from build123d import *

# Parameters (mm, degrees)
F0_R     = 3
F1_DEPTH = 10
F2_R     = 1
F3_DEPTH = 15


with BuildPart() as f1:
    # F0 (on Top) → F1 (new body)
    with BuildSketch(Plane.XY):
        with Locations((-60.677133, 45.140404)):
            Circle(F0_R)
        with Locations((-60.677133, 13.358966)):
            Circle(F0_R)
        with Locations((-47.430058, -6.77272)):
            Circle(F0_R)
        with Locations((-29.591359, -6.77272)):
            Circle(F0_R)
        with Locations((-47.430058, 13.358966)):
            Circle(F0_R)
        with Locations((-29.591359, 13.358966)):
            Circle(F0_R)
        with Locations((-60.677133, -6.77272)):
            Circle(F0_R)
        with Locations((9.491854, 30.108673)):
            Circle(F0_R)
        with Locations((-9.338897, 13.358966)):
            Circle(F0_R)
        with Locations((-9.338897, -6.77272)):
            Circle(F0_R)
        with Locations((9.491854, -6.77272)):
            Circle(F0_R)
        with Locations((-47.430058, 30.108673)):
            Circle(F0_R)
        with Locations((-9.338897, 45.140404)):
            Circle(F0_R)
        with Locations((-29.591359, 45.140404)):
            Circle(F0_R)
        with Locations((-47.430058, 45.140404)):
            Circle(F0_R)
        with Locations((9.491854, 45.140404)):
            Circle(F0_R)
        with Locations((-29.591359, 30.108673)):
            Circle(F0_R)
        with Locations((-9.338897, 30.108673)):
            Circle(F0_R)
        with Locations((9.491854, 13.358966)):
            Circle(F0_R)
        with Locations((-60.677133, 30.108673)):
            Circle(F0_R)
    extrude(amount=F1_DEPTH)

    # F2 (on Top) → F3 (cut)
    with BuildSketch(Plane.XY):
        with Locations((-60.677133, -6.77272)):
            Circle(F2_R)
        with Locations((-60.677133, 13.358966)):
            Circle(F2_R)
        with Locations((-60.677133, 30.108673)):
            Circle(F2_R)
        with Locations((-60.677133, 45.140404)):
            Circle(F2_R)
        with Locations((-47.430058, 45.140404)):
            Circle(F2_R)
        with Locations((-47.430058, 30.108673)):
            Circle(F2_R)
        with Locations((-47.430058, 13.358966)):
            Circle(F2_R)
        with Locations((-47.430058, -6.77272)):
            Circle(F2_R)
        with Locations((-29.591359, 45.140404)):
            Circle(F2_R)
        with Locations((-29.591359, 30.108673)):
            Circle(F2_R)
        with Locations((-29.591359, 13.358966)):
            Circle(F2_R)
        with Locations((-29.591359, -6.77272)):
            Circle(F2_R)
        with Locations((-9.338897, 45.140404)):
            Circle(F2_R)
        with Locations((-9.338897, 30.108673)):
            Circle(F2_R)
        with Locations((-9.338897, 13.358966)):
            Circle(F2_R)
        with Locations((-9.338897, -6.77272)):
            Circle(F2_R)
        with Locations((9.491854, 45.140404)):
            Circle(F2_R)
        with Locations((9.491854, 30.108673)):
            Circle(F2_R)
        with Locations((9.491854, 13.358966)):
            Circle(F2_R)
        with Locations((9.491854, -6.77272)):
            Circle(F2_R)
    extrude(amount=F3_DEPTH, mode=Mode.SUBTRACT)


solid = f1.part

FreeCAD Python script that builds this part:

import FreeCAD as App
import Part
import Sketcher

doc = App.newDocument("Part")
body = doc.addObject("PartDesign::Body", "Body")
body.AllowCompound = True

# Sketch on XY plane
sketch1 = body.newObject("Sketcher::SketchObject", "Sketch")
sketch1.AttachmentSupport = (doc.getObject("XY_Plane"), [""])
sketch1.MapMode = "FlatFace"
sketch1.addGeometry([
    Part.Circle(App.Vector(-60.7, 45.1, 0), App.Vector(0, 0, 1), 3),  # 0
    Part.Circle(App.Vector(-60.7, 13.4, 0), App.Vector(0, 0, 1), 3),  # 1
    Part.Circle(App.Vector(-47.4, -6.8, 0), App.Vector(0, 0, 1), 3),  # 2
    Part.Circle(App.Vector(-29.6, -6.8, 0), App.Vector(0, 0, 1), 3),  # 3
    Part.Circle(App.Vector(-47.4, 13.4, 0), App.Vector(0, 0, 1), 3),  # 4
    Part.Circle(App.Vector(-29.6, 13.4, 0), App.Vector(0, 0, 1), 3),  # 5
    Part.Circle(App.Vector(-60.7, -6.8, 0), App.Vector(0, 0, 1), 3),  # 6
    Part.Circle(App.Vector(9.5, 30.1, 0), App.Vector(0, 0, 1), 3),  # 7
    Part.Circle(App.Vector(-9.3, 13.4, 0), App.Vector(0, 0, 1), 3),  # 8
    Part.Circle(App.Vector(-9.3, -6.8, 0), App.Vector(0, 0, 1), 3),  # 9
    Part.Circle(App.Vector(9.5, -6.8, 0), App.Vector(0, 0, 1), 3),  # 10
    Part.Circle(App.Vector(-47.4, 30.1, 0), App.Vector(0, 0, 1), 3),  # 11
    Part.Circle(App.Vector(-9.3, 45.1, 0), App.Vector(0, 0, 1), 3),  # 12
    Part.Circle(App.Vector(-29.6, 45.1, 0), App.Vector(0, 0, 1), 3),  # 13
    Part.Circle(App.Vector(-47.4, 45.1, 0), App.Vector(0, 0, 1), 3),  # 14
    Part.Circle(App.Vector(9.5, 45.1, 0), App.Vector(0, 0, 1), 3),  # 15
    Part.Circle(App.Vector(-29.6, 30.1, 0), App.Vector(0, 0, 1), 3),  # 16
    Part.Circle(App.Vector(-9.3, 30.1, 0), App.Vector(0, 0, 1), 3),  # 17
    Part.Circle(App.Vector(9.5, 13.4, 0), App.Vector(0, 0, 1), 3),  # 18
    Part.Circle(App.Vector(-60.7, 30.1, 0), App.Vector(0, 0, 1), 3),  # 19
], False)
sketch1.addConstraint([
    Sketcher.Constraint("Equal", 0, 1),
    Sketcher.Constraint("Equal", 1, 2),
    Sketcher.Constraint("Equal", 2, 3),
    Sketcher.Constraint("Equal", 3, 4),
    Sketcher.Constraint("Equal", 4, 5),
    Sketcher.Constraint("Equal", 5, 6),
    Sketcher.Constraint("Equal", 6, 7),
    Sketcher.Constraint("Equal", 7, 8),
    Sketcher.Constraint("Equal", 8, 9),
    Sketcher.Constraint("Equal", 9, 10),
    Sketcher.Constraint("Equal", 10, 11),
    Sketcher.Constraint("Equal", 11, 12),
    Sketcher.Constraint("Equal", 12, 13),
    Sketcher.Constraint("Equal", 13, 14),
    Sketcher.Constraint("Equal", 14, 15),
    Sketcher.Constraint("Equal", 15, 16),
    Sketcher.Constraint("Equal", 16, 17),
    Sketcher.Constraint("Equal", 17, 18),
    Sketcher.Constraint("Equal", 18, 19),
    Sketcher.Constraint("Horizontal", 2, 3, 3, 3),
    Sketcher.Constraint("Horizontal", 1, 3, 4, 3),
    Sketcher.Constraint("Horizontal", 4, 3, 5, 3),
    Sketcher.Constraint("Horizontal", 3, 3, 6, 3),
    Sketcher.Constraint("Horizontal", 5, 3, 8, 3),
    Sketcher.Constraint("Horizontal", 6, 3, 9, 3),
    Sketcher.Constraint("Horizontal", 9, 3, 10, 3),
    Sketcher.Constraint("Horizontal", 7, 3, 11, 3),
    Sketcher.Constraint("Horizontal", 0, 3, 12, 3),
    Sketcher.Constraint("Horizontal", 12, 3, 13, 3),
    Sketcher.Constraint("Horizontal", 13, 3, 14, 3),
    Sketcher.Constraint("Horizontal", 14, 3, 15, 3),
    Sketcher.Constraint("Horizontal", 11, 3, 16, 3),
    Sketcher.Constraint("Horizontal", 16, 3, 17, 3),
    Sketcher.Constraint("Horizontal", 8, 3, 18, 3),
    Sketcher.Constraint("Horizontal", 17, 3, 19, 3),
    Sketcher.Constraint("Vertical", 0, 3, 1, 3),
    Sketcher.Constraint("Vertical", 2, 3, 4, 3),
    Sketcher.Constraint("Vertical", 3, 3, 5, 3),
    Sketcher.Constraint("Vertical", 1, 3, 6, 3),
    Sketcher.Constraint("Vertical", 8, 3, 9, 3),
    Sketcher.Constraint("Vertical", 7, 3, 10, 3),
    Sketcher.Constraint("Vertical", 4, 3, 11, 3),
    Sketcher.Constraint("Vertical", 9, 3, 12, 3),
    Sketcher.Constraint("Vertical", 5, 3, 13, 3),
    Sketcher.Constraint("Vertical", 11, 3, 14, 3),
    Sketcher.Constraint("Vertical", 10, 3, 15, 3),
    Sketcher.Constraint("Vertical", 13, 3, 16, 3),
    Sketcher.Constraint("Vertical", 12, 3, 17, 3),
    Sketcher.Constraint("Vertical", 15, 3, 18, 3),
    Sketcher.Constraint("Vertical", 6, 3, 19, 3),
    Sketcher.Constraint("Diameter", 0, 6.0),
    Sketcher.Constraint("DistanceX", 2, 3, 3, 3, 17.838699),
    Sketcher.Constraint("DistanceX", 2, 3, -1, 1, 47.430058),
    Sketcher.Constraint("DistanceY", 2, 3, -1, 1, 6.77272),
    Sketcher.Constraint("DistanceY", 7, 3, 0, 3, 15.031731),
    Sketcher.Constraint("DistanceX", 8, 3, 7, 3, 18.830751),
    Sketcher.Constraint("DistanceX", 4, 3, 8, 3, 38.091161),
    Sketcher.Constraint("DistanceX", 0, 3, -1, 1, 60.677133),
    Sketcher.Constraint("DistanceY", -1, 1, 0, 3, 45.140404),
    Sketcher.Constraint("DistanceY", -1, 1, 1, 3, 13.358966),
])
pad1 = body.newObject("PartDesign::Pad", "Pad")
pad1.Profile = sketch1
pad1.Length = 10

# Sketch on XY plane
sketch2 = body.newObject("Sketcher::SketchObject", "Sketch001")
sketch2.AttachmentSupport = (doc.getObject("XY_Plane"), [""])
sketch2.MapMode = "FlatFace"
sketch2.addGeometry([
    Part.Circle(App.Vector(-60.7, -6.8, 0), App.Vector(0, 0, 1), 1),  # 0
    Part.Circle(App.Vector(-60.7, 13.4, 0), App.Vector(0, 0, 1), 1),  # 1
    Part.Circle(App.Vector(-60.7, 30.1, 0), App.Vector(0, 0, 1), 1),  # 2
    Part.Circle(App.Vector(-60.7, 45.1, 0), App.Vector(0, 0, 1), 1),  # 3
    Part.Circle(App.Vector(-47.4, 45.1, 0), App.Vector(0, 0, 1), 1),  # 4
    Part.Circle(App.Vector(-47.4, 30.1, 0), App.Vector(0, 0, 1), 1),  # 5
    Part.Circle(App.Vector(-47.4, 13.4, 0), App.Vector(0, 0, 1), 1),  # 6
    Part.Circle(App.Vector(-47.4, -6.8, 0), App.Vector(0, 0, 1), 1),  # 7
    Part.Circle(App.Vector(-29.6, 45.1, 0), App.Vector(0, 0, 1), 1),  # 8
    Part.Circle(App.Vector(-29.6, 30.1, 0), App.Vector(0, 0, 1), 1),  # 9
    Part.Circle(App.Vector(-29.6, 13.4, 0), App.Vector(0, 0, 1), 1),  # 10
    Part.Circle(App.Vector(-29.6, -6.8, 0), App.Vector(0, 0, 1), 1),  # 11
    Part.Circle(App.Vector(-9.3, 45.1, 0), App.Vector(0, 0, 1), 1),  # 12
    Part.Circle(App.Vector(-9.3, 30.1, 0), App.Vector(0, 0, 1), 1),  # 13
    Part.Circle(App.Vector(-9.3, 13.4, 0), App.Vector(0, 0, 1), 1),  # 14
    Part.Circle(App.Vector(-9.3, -6.8, 0), App.Vector(0, 0, 1), 1),  # 15
    Part.Circle(App.Vector(9.5, 45.1, 0), App.Vector(0, 0, 1), 1),  # 16
    Part.Circle(App.Vector(9.5, 30.1, 0), App.Vector(0, 0, 1), 1),  # 17
    Part.Circle(App.Vector(9.5, 13.4, 0), App.Vector(0, 0, 1), 1),  # 18
    Part.Circle(App.Vector(9.5, -6.8, 0), App.Vector(0, 0, 1), 1),  # 19
], False)
sketch2.addConstraint([
    Sketcher.Constraint("Equal", 0, 1),
    Sketcher.Constraint("Equal", 1, 2),
    Sketcher.Constraint("Equal", 2, 3),
    Sketcher.Constraint("Equal", 3, 4),
    Sketcher.Constraint("Equal", 4, 5),
    Sketcher.Constraint("Equal", 5, 6),
    Sketcher.Constraint("Equal", 6, 7),
    Sketcher.Constraint("Equal", 7, 8),
    Sketcher.Constraint("Equal", 8, 9),
    Sketcher.Constraint("Equal", 9, 10),
    Sketcher.Constraint("Equal", 10, 11),
    Sketcher.Constraint("Equal", 11, 12),
    Sketcher.Constraint("Equal", 12, 13),
    Sketcher.Constraint("Equal", 13, 14),
    Sketcher.Constraint("Equal", 14, 15),
    Sketcher.Constraint("Equal", 15, 16),
    Sketcher.Constraint("Equal", 16, 17),
    Sketcher.Constraint("Equal", 17, 18),
    Sketcher.Constraint("Equal", 18, 19),
    Sketcher.Constraint("Horizontal", 3, 3, 4, 3),
    Sketcher.Constraint("Horizontal", 2, 3, 5, 3),
    Sketcher.Constraint("Horizontal", 1, 3, 6, 3),
    Sketcher.Constraint("Horizontal", 0, 3, 7, 3),
    Sketcher.Constraint("Horizontal", 4, 3, 8, 3),
    Sketcher.Constraint("Horizontal", 5, 3, 9, 3),
    Sketcher.Constraint("Horizontal", 6, 3, 10, 3),
    Sketcher.Constraint("Horizontal", 7, 3, 11, 3),
    Sketcher.Constraint("Horizontal", 8, 3, 12, 3),
    Sketcher.Constraint("Horizontal", 9, 3, 13, 3),
    Sketcher.Constraint("Horizontal", 10, 3, 14, 3),
    Sketcher.Constraint("Horizontal", 11, 3, 15, 3),
    Sketcher.Constraint("Horizontal", 12, 3, 16, 3),
    Sketcher.Constraint("Horizontal", 13, 3, 17, 3),
    Sketcher.Constraint("Horizontal", 14, 3, 18, 3),
    Sketcher.Constraint("Horizontal", 15, 3, 19, 3),
    Sketcher.Constraint("Vertical", 0, 3, 1, 3),
    Sketcher.Constraint("Vertical", 1, 3, 2, 3),
    Sketcher.Constraint("Vertical", 2, 3, 3, 3),
    Sketcher.Constraint("Vertical", 4, 3, 5, 3),
    Sketcher.Constraint("Vertical", 5, 3, 6, 3),
    Sketcher.Constraint("Vertical", 6, 3, 7, 3),
    Sketcher.Constraint("Vertical", 8, 3, 9, 3),
    Sketcher.Constraint("Vertical", 9, 3, 10, 3),
    Sketcher.Constraint("Vertical", 10, 3, 11, 3),
    Sketcher.Constraint("Vertical", 12, 3, 13, 3),
    Sketcher.Constraint("Vertical", 13, 3, 14, 3),
    Sketcher.Constraint("Vertical", 14, 3, 15, 3),
    Sketcher.Constraint("Vertical", 16, 3, 17, 3),
    Sketcher.Constraint("Vertical", 17, 3, 18, 3),
    Sketcher.Constraint("Vertical", 18, 3, 19, 3),
    Sketcher.Constraint("Diameter", 0, 2.0),
    Sketcher.Constraint("DistanceX", 4, 3, 8, 3, 17.838699),
    Sketcher.Constraint("DistanceY", 0, 3, -1, 1, 6.77272),
    Sketcher.Constraint("DistanceX", 4, 3, -1, 1, 47.430058),
    Sketcher.Constraint("DistanceY", 2, 3, 3, 3, 15.031731),
    Sketcher.Constraint("DistanceX", 4, 3, 12, 3, 38.091161),
    Sketcher.Constraint("DistanceX", 12, 3, 16, 3, 18.830751),
    Sketcher.Constraint("DistanceX", 0, 3, -1, 1, 60.677133),
    Sketcher.Constraint("DistanceY", -1, 1, 1, 3, 13.358966),
    Sketcher.Constraint("DistanceY", -1, 1, 2, 3, 30.108673),
])
pocket1 = body.newObject("PartDesign::Pocket", "Pocket")
pocket1.Profile = sketch2
pocket1.Length = 15
pocket1.Reversed = True

doc.recompute()
